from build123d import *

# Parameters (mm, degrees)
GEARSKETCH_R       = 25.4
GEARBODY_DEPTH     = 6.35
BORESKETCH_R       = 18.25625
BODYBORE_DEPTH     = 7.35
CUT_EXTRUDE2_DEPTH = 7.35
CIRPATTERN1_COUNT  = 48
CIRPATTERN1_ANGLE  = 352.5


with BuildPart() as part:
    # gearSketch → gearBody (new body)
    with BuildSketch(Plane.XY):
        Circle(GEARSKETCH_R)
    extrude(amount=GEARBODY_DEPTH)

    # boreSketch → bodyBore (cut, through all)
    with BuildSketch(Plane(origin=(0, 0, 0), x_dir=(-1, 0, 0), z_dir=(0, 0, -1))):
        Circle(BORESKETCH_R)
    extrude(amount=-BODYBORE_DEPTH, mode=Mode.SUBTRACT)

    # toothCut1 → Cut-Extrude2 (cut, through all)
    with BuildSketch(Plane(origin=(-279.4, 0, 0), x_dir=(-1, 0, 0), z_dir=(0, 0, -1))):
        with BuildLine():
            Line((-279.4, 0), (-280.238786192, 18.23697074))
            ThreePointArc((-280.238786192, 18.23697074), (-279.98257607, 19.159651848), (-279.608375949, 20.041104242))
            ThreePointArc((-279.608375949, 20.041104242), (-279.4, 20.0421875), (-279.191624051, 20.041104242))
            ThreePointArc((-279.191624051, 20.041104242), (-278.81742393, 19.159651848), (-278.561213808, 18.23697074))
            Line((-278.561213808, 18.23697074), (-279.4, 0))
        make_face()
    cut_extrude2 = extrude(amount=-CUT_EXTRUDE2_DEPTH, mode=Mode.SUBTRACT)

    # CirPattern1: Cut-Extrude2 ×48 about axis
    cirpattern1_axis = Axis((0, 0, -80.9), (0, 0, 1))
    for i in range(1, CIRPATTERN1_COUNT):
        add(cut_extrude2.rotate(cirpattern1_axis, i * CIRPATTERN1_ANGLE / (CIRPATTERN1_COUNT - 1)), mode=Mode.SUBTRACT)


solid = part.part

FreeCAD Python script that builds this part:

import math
import FreeCAD as App
import Part
import Sketcher
from FreeCAD import Vector
Q = App.Units.Quantity

doc = App.newDocument("Part")
body = doc.addObject("PartDesign::Body", "Body")

sketch1 = body.newObject("Sketcher::SketchObject", "Sketch")
sketch1.AttachmentSupport = (doc.getObject("XY_Plane"), [""])
sketch1.MapMode = "FlatFace"
sketch1.addGeometry(Part.Circle(Vector(0, 0, 0), Vector(0, 0, 1), 25), False)
sketch1.addConstraint([
    Sketcher.Constraint("Coincident", 0, 3, -1, 1),
    Sketcher.Constraint("Diameter", 0, Q("2 in")),
])
pad1 = body.newObject("PartDesign::Pad", "Pad")
pad1.Profile = sketch1
pad1.Length = Q("0.25 in")

sketch2 = body.newObject("Sketcher::SketchObject", "Sketch001")
sketch2.AttachmentSupport = (doc.getObject("XY_Plane"), [""])
sketch2.MapMode = "FlatFace"
sketch2.addGeometry(Part.Circle(Vector(0, 0, 0), Vector(0, 0, 1), 18), False)
sketch2.addConstraint([
    Sketcher.Constraint("Coincident", 0, 3, -1, 1),
    Sketcher.Constraint("Diameter", 0, Q("1.4375 in")),
])
pocket1 = body.newObject("PartDesign::Pocket", "Pocket")
pocket1.Profile = sketch2
pocket1.Type = "ThroughAll"
pocket1.Reversed = True

sketch3 = body.newObject("Sketcher::SketchObject", "Sketch002")
sketch3.AttachmentSupport = (doc.getObject("XY_Plane"), [""])
sketch3.MapMode = "FlatFace"
sketch3.addGeometry([
    Part.LineSegment(Vector(0.84, 18.24, 0), Vector(0, 0, 0)),
    Part.LineSegment(Vector(0, 0, 0), Vector(-0.84, 18.24, 0)),
    Part.ArcOfCircle(Part.Circle(Vector(6.34, 16.74, 0), Vector(0, 0, 1), 7.34), math.radians(153.26), math.radians(168.22)),
    Part.ArcOfCircle(Part.Circle(Vector(0, 0, 0), Vector(0, 0, 1), 20.04), math.radians(89.4), math.radians(90.6)),
    Part.ArcOfCircle(Part.Circle(Vector(-6.34, 16.74, 0), Vector(0, 0, 1), 7.34), math.radians(11.78), math.radians(26.74)),
], False)
sketch3.addConstraint([
    Sketcher.Constraint("Coincident", 0, 2, 1, 1),
    Sketcher.Constraint("Coincident", 1, 2, 2, 2),
    Sketcher.Constraint("Coincident", 2, 1, 3, 2),
    Sketcher.Constraint("Coincident", 3, 1, 4, 2),
    Sketcher.Constraint("Coincident", 4, 1, 0, 1),
    Sketcher.Constraint("Coincident", 3, 3, -1, 1),
    Sketcher.Constraint("Coincident", 0, 2, -1, 1),
    Sketcher.Constraint("Equal", 2, 4),
    Sketcher.Constraint("Symmetric", 2, 3, 4, 3, -2),
    Sketcher.Constraint("Horizontal", 1, 2, 4, 1),
    Sketcher.Constraint("Distance", 0, Q("0.71875 in")),
    Sketcher.Constraint("Radius", 2, 7.336707),
    Sketcher.Constraint("Radius", 3, 20.042183),
    Sketcher.Constraint("DistanceX", 4, 3, 2, 1, 6.1351),
    Sketcher.Constraint("DistanceY", 3, 3, 2, 3, 16.739508),
])
pocket2 = body.newObject("PartDesign::Pocket", "Pocket001")
pocket2.Profile = sketch3
pocket2.Type = "ThroughAll"
pocket2.Reversed = True
doc.recompute()

polarpattern = body.newObject("PartDesign::PolarPattern", "PolarPattern")
polarpattern.Originals = [pocket2]
polarpattern.Axis = (doc.getObject("Z_Axis"), [""])
polarpattern.Angle = 360
polarpattern.Occurrences = 48
body.Tip = polarpattern

doc.recompute()
